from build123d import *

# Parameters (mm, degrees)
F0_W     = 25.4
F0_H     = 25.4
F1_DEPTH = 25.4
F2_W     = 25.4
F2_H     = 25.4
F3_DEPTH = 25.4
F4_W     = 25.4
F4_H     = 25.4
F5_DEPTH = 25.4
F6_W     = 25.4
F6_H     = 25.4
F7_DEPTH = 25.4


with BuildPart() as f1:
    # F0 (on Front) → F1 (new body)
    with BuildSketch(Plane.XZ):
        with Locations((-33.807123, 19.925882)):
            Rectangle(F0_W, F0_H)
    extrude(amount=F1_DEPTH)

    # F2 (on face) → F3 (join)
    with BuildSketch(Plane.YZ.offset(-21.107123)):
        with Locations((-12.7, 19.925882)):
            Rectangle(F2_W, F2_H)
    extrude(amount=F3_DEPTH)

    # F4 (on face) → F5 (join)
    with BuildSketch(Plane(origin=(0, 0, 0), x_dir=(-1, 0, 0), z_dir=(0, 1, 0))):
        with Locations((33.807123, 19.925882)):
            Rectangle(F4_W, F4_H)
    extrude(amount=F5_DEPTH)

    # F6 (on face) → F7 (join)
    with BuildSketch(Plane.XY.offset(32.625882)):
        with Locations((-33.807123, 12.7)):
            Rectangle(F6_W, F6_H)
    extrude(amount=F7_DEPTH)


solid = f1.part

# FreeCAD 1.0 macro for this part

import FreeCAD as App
import Part
import Sketcher
from FreeCAD import Vector
Q = App.Units.Quantity

doc = App.newDocument("Part")
body = doc.addObject("PartDesign::Body", "Body")

sketch1 = body.newObject("Sketcher::SketchObject", "Sketch")
sketch1.AttachmentSupport = (doc.getObject("XZ_Plane"), [""])
sketch1.MapMode = "FlatFace"
sketch1.addGeometry([
    Part.LineSegment(Vector(-46.507123, 32.625882, 0), Vector(-46.507123, 7.225882, 0)),
    Part.LineSegment(Vector(-46.507123, 7.225882, 0), Vector(-21.107123, 7.225882, 0)),
    Part.LineSegment(Vector(-21.107123, 7.225882, 0), Vector(-21.107123, 32.625882, 0)),
    Part.LineSegment(Vector(-21.107123, 32.625882, 0), Vector(-46.507123, 32.625882, 0)),
], False)
sketch1.addConstraint([
    Sketcher.Constraint("Coincident", 0, 2, 1, 1),
    Sketcher.Constraint("Coincident", 1, 2, 2, 1),
    Sketcher.Constraint("Coincident", 2, 2, 3, 1),
    Sketcher.Constraint("Coincident", 3, 2, 0, 1),
    Sketcher.Constraint("Vertical", 0),
    Sketcher.Constraint("Horizontal", 1),
    Sketcher.Constraint("Vertical", 2),
    Sketcher.Constraint("Horizontal", 3),
    Sketcher.Constraint("Equal", 3, 0),
    Sketcher.Constraint("DistanceX", 1, 1, 1, 2, Q("1 in")),
    Sketcher.Constraint("DistanceY", -1, 1, 2, 2, Q("32.625882 mm")),
    Sketcher.Constraint("DistanceX", 0, 2, -1, 1, Q("46.507123 mm")),
])
pad1 = body.newObject("PartDesign::Pad", "Pad")
pad1.Profile = sketch1
pad1.Length = Q("1 in")

sketch2 = body.newObject("Sketcher::SketchObject", "Sketch001")
sketch2.AttachmentSupport = (doc.getObject("YZ_Plane"), [""])
sketch2.MapMode = "FlatFace"
sketch2.AttachmentOffset = App.Placement(Vector(0, 0, -21.107123), App.Rotation())
sketch2.addGeometry([
    Part.LineSegment(Vector(-25.4, 32.625882, 0), Vector(-25.4, 7.225882, 0)),
    Part.LineSegment(Vector(-25.4, 7.225882, 0), Vector(0, 7.225882, 0)),
    Part.LineSegment(Vector(0, 7.225882, 0), Vector(0, 32.625882, 0)),
    Part.LineSegment(Vector(0, 32.625882, 0), Vector(-25.4, 32.625882, 0)),
], False)
sketch2.addConstraint([
    Sketcher.Constraint("Coincident", 0, 2, 1, 1),
    Sketcher.Constraint("Coincident", 1, 2, 2, 1),
    Sketcher.Constraint("Coincident", 2, 2, 3, 1),
    Sketcher.Constraint("Coincident", 3, 2, 0, 1),
    Sketcher.Constraint("Vertical", 0),
    Sketcher.Constraint("Horizontal", 1),
    Sketcher.Constraint("Vertical", 2),
    Sketcher.Constraint("Horizontal", 3),
    Sketcher.Constraint("PointOnObject", 1, 2, -2),
    Sketcher.Constraint("Equal", 3, 0),
    Sketcher.Constraint("DistanceX", 1, 1, 1, 2, Q("1 in")),
    Sketcher.Constraint("DistanceY", -1, 1, 2, 2, Q("32.625882 mm")),
])
pad2 = body.newObject("PartDesign::Pad", "Pad001")
pad2.Profile = sketch2
pad2.Length = Q("1 in")

sketch3 = body.newObject("Sketcher::SketchObject", "Sketch002")
sketch3.AttachmentSupport = (doc.getObject("XZ_Plane"), [""])
sketch3.MapMode = "FlatFace"
sketch3.addGeometry([
    Part.LineSegment(Vector(-21.107123, 32.625882, 0), Vector(-21.107123, 7.225882, 0)),
    Part.LineSegment(Vector(-21.107123, 7.225882, 0), Vector(-46.507123, 7.225882, 0)),
    Part.LineSegment(Vector(-46.507123, 7.225882, 0), Vector(-46.507123, 32.625882, 0)),
    Part.LineSegment(Vector(-46.507123, 32.625882, 0), Vector(-21.107123, 32.625882, 0)),
], False)
sketch3.addConstraint([
    Sketcher.Constraint("Coincident", 0, 2, 1, 1),
    Sketcher.Constraint("Coincident", 1, 2, 2, 1),
    Sketcher.Constraint("Coincident", 2, 2, 3, 1),
    Sketcher.Constraint("Coincident", 3, 2, 0, 1),
    Sketcher.Constraint("Vertical", 0),
    Sketcher.Constraint("Horizontal", 1),
    Sketcher.Constraint("Vertical", 2),
    Sketcher.Constraint("Horizontal", 3),
    Sketcher.Constraint("Equal", 3, 0),
    Sketcher.Constraint("DistanceX", 1, 2, 1, 1, Q("1 in")),
    Sketcher.Constraint("DistanceY", -1, 1, 2, 2, Q("32.625882 mm")),
    Sketcher.Constraint("DistanceX", 0, 2, -1, 1, Q("21.107123 mm")),
])
pad3 = body.newObject("PartDesign::Pad", "Pad002")
pad3.Profile = sketch3
pad3.Length = Q("1 in")
pad3.Reversed = True

sketch4 = body.newObject("Sketcher::SketchObject", "Sketch003")
sketch4.AttachmentSupport = (doc.getObject("XY_Plane"), [""])
sketch4.MapMode = "FlatFace"
sketch4.AttachmentOffset = App.Placement(Vector(0, 0, 32.625882), App.Rotation())
sketch4.addGeometry([
    Part.LineSegment(Vector(-46.507123, 25.4, 0), Vector(-46.507123, 0, 0)),
    Part.LineSegment(Vector(-46.507123, 0, 0), Vector(-21.107123, 0, 0)),
    Part.LineSegment(Vector(-21.107123, 0, 0), Vector(-21.107123, 25.4, 0)),
    Part.LineSegment(Vector(-21.107123, 25.4, 0), Vector(-46.507123, 25.4, 0)),
], False)
sketch4.addConstraint([
    Sketcher.Constraint("Coincident", 0, 2, 1, 1),
    Sketcher.Constraint("Coincident", 1, 2, 2, 1),
    Sketcher.Constraint("Coincident", 2, 2, 3, 1),
    Sketcher.Constraint("Coincident", 3, 2, 0, 1),
    Sketcher.Constraint("Vertical", 0),
    Sketcher.Constraint("Horizontal", 1),
    Sketcher.Constraint("Vertical", 2),
    Sketcher.Constraint("Horizontal", 3),
    Sketcher.Constraint("PointOnObject", 0, 2, -1),
    Sketcher.Constraint("Equal", 3, 0),
    Sketcher.Constraint("DistanceX", 1, 1, 1, 2, Q("1 in")),
    Sketcher.Constraint("DistanceX", 0, 2, -1, 1, Q("46.507123 mm")),
])
pad4 = body.newObject("PartDesign::Pad", "Pad003")
pad4.Profile = sketch4
pad4.Length = Q("1 in")

doc.recompute()
